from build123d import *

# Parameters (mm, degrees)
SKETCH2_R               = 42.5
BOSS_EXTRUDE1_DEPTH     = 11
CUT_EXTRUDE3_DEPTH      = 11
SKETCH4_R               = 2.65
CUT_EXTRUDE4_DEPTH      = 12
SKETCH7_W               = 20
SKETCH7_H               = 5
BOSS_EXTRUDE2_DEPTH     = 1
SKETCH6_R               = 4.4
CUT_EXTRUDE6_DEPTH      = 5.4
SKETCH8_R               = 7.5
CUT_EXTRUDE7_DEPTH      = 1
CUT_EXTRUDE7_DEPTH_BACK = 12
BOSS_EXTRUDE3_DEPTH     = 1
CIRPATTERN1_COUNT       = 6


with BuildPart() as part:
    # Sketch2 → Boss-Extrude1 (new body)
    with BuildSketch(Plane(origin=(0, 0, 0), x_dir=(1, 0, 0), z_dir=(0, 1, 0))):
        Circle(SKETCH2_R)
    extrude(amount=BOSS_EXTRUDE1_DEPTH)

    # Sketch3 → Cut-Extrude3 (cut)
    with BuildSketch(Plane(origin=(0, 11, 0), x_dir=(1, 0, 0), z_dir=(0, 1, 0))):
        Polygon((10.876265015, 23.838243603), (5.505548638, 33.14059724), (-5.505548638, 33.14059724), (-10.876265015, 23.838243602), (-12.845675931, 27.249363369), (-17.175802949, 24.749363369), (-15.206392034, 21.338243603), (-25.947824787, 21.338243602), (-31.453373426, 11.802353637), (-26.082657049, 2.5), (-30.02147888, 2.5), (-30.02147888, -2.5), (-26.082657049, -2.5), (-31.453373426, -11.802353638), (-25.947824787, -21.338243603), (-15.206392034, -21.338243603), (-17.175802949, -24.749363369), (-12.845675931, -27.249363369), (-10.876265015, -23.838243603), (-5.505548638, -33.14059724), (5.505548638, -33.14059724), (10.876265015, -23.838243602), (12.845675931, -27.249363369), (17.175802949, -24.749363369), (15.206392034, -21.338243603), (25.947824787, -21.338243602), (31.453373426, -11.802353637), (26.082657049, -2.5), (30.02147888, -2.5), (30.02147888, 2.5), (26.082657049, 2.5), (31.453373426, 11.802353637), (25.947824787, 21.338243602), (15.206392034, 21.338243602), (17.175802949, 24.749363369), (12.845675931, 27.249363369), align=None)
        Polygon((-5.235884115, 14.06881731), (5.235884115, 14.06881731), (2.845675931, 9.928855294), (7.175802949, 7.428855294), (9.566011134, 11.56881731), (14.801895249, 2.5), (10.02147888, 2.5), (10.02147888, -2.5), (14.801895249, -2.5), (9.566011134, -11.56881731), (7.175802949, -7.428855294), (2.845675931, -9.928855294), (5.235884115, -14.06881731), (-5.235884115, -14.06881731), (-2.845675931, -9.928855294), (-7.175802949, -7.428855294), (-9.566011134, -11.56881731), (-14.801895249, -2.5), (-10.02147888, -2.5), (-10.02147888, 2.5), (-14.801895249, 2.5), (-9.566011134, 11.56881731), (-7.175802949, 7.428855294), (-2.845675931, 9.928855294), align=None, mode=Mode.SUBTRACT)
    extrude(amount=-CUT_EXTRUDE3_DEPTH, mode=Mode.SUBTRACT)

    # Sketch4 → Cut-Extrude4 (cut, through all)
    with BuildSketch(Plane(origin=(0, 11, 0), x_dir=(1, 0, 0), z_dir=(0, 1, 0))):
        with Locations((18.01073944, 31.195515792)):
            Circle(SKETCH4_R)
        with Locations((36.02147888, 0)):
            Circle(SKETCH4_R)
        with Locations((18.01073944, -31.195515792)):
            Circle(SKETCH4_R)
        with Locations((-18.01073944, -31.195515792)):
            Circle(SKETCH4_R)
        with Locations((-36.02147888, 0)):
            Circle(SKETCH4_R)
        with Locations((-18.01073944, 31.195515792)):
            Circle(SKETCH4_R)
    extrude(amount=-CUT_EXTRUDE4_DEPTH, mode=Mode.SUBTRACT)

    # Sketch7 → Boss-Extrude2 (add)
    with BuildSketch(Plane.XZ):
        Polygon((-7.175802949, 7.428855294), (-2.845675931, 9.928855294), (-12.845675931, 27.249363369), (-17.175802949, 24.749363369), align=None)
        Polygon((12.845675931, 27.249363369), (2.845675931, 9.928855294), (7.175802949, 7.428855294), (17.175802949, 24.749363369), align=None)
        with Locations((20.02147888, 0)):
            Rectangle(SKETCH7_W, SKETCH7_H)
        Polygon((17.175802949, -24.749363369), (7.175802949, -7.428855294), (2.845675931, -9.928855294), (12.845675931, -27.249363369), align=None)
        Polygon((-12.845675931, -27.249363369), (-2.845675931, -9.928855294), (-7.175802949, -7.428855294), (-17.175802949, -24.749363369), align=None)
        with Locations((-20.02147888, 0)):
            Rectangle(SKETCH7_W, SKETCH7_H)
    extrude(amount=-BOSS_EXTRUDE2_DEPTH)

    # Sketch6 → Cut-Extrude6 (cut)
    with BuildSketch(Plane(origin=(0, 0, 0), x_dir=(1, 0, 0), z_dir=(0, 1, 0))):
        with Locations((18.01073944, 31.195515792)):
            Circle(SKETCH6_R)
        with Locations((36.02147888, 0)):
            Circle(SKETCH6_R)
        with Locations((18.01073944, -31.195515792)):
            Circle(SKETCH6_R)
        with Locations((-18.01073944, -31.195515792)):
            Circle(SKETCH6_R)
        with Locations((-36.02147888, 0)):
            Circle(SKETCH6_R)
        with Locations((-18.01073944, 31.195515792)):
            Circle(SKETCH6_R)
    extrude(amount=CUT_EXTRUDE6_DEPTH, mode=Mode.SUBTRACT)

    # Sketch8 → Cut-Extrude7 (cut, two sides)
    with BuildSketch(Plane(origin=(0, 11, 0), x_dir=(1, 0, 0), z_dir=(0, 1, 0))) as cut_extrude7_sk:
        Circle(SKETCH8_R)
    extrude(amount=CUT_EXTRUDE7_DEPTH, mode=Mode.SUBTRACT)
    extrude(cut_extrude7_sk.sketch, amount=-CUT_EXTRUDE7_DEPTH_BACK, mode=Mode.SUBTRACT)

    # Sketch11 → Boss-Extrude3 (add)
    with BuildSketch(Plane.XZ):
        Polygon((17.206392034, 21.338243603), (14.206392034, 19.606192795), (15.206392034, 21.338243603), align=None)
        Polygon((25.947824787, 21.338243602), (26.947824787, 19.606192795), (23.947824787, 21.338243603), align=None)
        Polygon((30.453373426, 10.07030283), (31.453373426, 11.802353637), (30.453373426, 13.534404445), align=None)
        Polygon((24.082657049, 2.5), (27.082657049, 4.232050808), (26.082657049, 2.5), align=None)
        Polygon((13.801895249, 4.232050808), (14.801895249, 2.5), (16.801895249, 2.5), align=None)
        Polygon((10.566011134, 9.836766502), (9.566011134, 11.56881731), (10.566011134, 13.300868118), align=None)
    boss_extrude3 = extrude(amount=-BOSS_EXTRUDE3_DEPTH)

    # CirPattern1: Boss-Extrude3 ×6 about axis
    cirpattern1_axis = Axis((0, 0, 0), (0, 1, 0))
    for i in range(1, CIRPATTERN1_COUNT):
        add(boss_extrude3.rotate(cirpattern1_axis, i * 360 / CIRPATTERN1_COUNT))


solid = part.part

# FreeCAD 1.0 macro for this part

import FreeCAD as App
import Part
import Sketcher
Q = App.Units.Quantity

doc = App.newDocument("Part")
body = doc.addObject("PartDesign::Body", "Body")
body.AllowCompound = True

# Sketch on XZ plane
sketch1 = body.newObject("Sketcher::SketchObject", "Sketch")
sketch1.AttachmentSupport = (doc.getObject("XZ_Plane"), [""])
sketch1.MapMode = "FlatFace"
sketch1.addGeometry(Part.Circle(App.Vector(0, 0, 0), App.Vector(0, 0, 1), 42), False)
sketch1.addConstraint(Sketcher.Constraint("Coincident", 0, 3, -1, 1))
sketch1.addConstraint(Sketcher.Constraint("Diameter", 0, 85.0))
pad1 = body.newObject("PartDesign::Pad", "Pad")
pad1.Profile = sketch1
pad1.Length = 11
pad1.Reversed = True

# Sketch on XZ plane
sketch2 = body.newObject("Sketcher::SketchObject", "Sketch001")
sketch2.AttachmentSupport = (doc.getObject("XZ_Plane"), [""])
sketch2.MapMode = "FlatFace"
sketch2.AttachmentOffset = App.Placement(App.Vector(0, 0, -11), App.Rotation())
sketch2.addGeometry(Part.LineSegment(App.Vector(10.9, -23.8, 0), App.Vector(5.5, -33.1, 0)), False)
sketch2.addGeometry(Part.LineSegment(App.Vector(5.5, -33.1, 0), App.Vector(-5.5, -33.1, 0)), False)
sketch2.addGeometry(Part.LineSegment(App.Vector(-5.5, -33.1, 0), App.Vector(-10.9, -23.8, 0)), False)
sketch2.addGeometry(Part.LineSegment(App.Vector(-10.9, -23.8, 0), App.Vector(-12.8, -27.2, 0)), False)
sketch2.addGeometry(Part.LineSegment(App.Vector(-12.8, -27.2, 0), App.Vector(-17.2, -24.7, 0)), False)
sketch2.addGeometry(Part.LineSegment(App.Vector(-17.2, -24.7, 0), App.Vector(-15.2, -21.3, 0)), False)
sketch2.addGeometry(Part.LineSegment(App.Vector(-15.2, -21.3, 0), App.Vector(-25.9, -21.3, 0)), False)
sketch2.addGeometry(Part.LineSegment(App.Vector(-25.9, -21.3, 0), App.Vector(-31.5, -11.8, 0)), False)
sketch2.addGeometry(Part.LineSegment(App.Vector(-31.5, -11.8, 0), App.Vector(-26.1, -2.5, 0)), False)
sketch2.addGeometry(Part.LineSegment(App.Vector(-26.1, -2.5, 0), App.Vector(-30, -2.5, 0)), False)
sketch2.addGeometry(Part.LineSegment(App.Vector(-30, -2.5, 0), App.Vector(-30, 2.5, 0)), False)
sketch2.addGeometry(Part.LineSegment(App.Vector(-30, 2.5, 0), App.Vector(-26.1, 2.5, 0)), False)
sketch2.addGeometry(Part.LineSegment(App.Vector(-26.1, 2.5, 0), App.Vector(-31.5, 11.8, 0)), False)
sketch2.addGeometry(Part.LineSegment(App.Vector(-31.5, 11.8, 0), App.Vector(-25.9, 21.3, 0)), False)
sketch2.addGeometry(Part.LineSegment(App.Vector(-25.9, 21.3, 0), App.Vector(-15.2, 21.3, 0)), False)
sketch2.addGeometry(Part.LineSegment(App.Vector(-15.2, 21.3, 0), App.Vector(-17.2, 24.7, 0)), False)
sketch2.addGeometry(Part.LineSegment(App.Vector(-17.2, 24.7, 0), App.Vector(-12.8, 27.2, 0)), False)
sketch2.addGeometry(Part.LineSegment(App.Vector(-12.8, 27.2, 0), App.Vector(-10.9, 23.8, 0)), False)
sketch2.addGeometry(Part.LineSegment(App.Vector(-10.9, 23.8, 0), App.Vector(-5.5, 33.1, 0)), False)
sketch2.addGeometry(Part.LineSegment(App.Vector(-5.5, 33.1, 0), App.Vector(5.5, 33.1, 0)), False)
sketch2.addGeometry(Part.LineSegment(App.Vector(5.5, 33.1, 0), App.Vector(10.9, 23.8, 0)), False)
sketch2.addGeometry(Part.LineSegment(App.Vector(10.9, 23.8, 0), App.Vector(12.8, 27.2, 0)), False)
sketch2.addGeometry(Part.LineSegment(App.Vector(12.8, 27.2, 0), App.Vector(17.2, 24.7, 0)), False)
sketch2.addGeometry(Part.LineSegment(App.Vector(17.2, 24.7, 0), App.Vector(15.2, 21.3, 0)), False)
sketch2.addGeometry(Part.LineSegment(App.Vector(15.2, 21.3, 0), App.Vector(25.9, 21.3, 0)), False)
sketch2.addGeometry(Part.LineSegment(App.Vector(25.9, 21.3, 0), App.Vector(31.5, 11.8, 0)), False)
sketch2.addGeometry(Part.LineSegment(App.Vector(31.5, 11.8, 0), App.Vector(26.1, 2.5, 0)), False)
sketch2.addGeometry(Part.LineSegment(App.Vector(26.1, 2.5, 0), App.Vector(30, 2.5, 0)), False)
sketch2.addGeometry(Part.LineSegment(App.Vector(30, 2.5, 0), App.Vector(30, -2.5, 0)), False)
sketch2.addGeometry(Part.LineSegment(App.Vector(30, -2.5, 0), App.Vector(26.1, -2.5, 0)), False)
sketch2.addGeometry(Part.LineSegment(App.Vector(26.1, -2.5, 0), App.Vector(31.5, -11.8, 0)), False)
sketch2.addGeometry(Part.LineSegment(App.Vector(31.5, -11.8, 0), App.Vector(25.9, -21.3, 0)), False)
sketch2.addGeometry(Part.LineSegment(App.Vector(25.9, -21.3, 0), App.Vector(15.2, -21.3, 0)), False)
sketch2.addGeometry(Part.LineSegment(App.Vector(15.2, -21.3, 0), App.Vector(17.2, -24.7, 0)), False)
sketch2.addGeometry(Part.LineSegment(App.Vector(17.2, -24.7, 0), App.Vector(12.8, -27.2, 0)), False)
sketch2.addGeometry(Part.LineSegment(App.Vector(12.8, -27.2, 0), App.Vector(10.9, -23.8, 0)), False)
sketch2.addGeometry(Part.LineSegment(App.Vector(-2.8, -9.9, 0), App.Vector(-5.2, -14.1, 0)), False)
sketch2.addGeometry(Part.LineSegment(App.Vector(-5.2, -14.1, 0), App.Vector(5.2, -14.1, 0)), False)
sketch2.addGeometry(Part.LineSegment(App.Vector(5.2, -14.1, 0), App.Vector(2.8, -9.9, 0)), False)
sketch2.addGeometry(Part.LineSegment(App.Vector(2.8, -9.9, 0), App.Vector(7.2, -7.4, 0)), False)
sketch2.addGeometry(Part.LineSegment(App.Vector(7.2, -7.4, 0), App.Vector(9.6, -11.6, 0)), False)
sketch2.addGeometry(Part.LineSegment(App.Vector(9.6, -11.6, 0), App.Vector(14.8, -2.5, 0)), False)
sketch2.addGeometry(Part.LineSegment(App.Vector(14.8, -2.5, 0), App.Vector(10, -2.5, 0)), False)
sketch2.addGeometry(Part.LineSegment(App.Vector(10, -2.5, 0), App.Vector(10, 2.5, 0)), False)
sketch2.addGeometry(Part.LineSegment(App.Vector(10, 2.5, 0), App.Vector(14.8, 2.5, 0)), False)
sketch2.addGeometry(Part.LineSegment(App.Vector(14.8, 2.5, 0), App.Vector(9.6, 11.6, 0)), False)
sketch2.addGeometry(Part.LineSegment(App.Vector(9.6, 11.6, 0), App.Vector(7.2, 7.4, 0)), False)
sketch2.addGeometry(Part.LineSegment(App.Vector(7.2, 7.4, 0), App.Vector(2.8, 9.9, 0)), False)
sketch2.addGeometry(Part.LineSegment(App.Vector(2.8, 9.9, 0), App.Vector(5.2, 14.1, 0)), False)
sketch2.addGeometry(Part.LineSegment(App.Vector(5.2, 14.1, 0), App.Vector(-5.2, 14.1, 0)), False)
sketch2.addGeometry(Part.LineSegment(App.Vector(-5.2, 14.1, 0), App.Vector(-2.8, 9.9, 0)), False)
sketch2.addGeometry(Part.LineSegment(App.Vector(-2.8, 9.9, 0), App.Vector(-7.2, 7.4, 0)), False)
sketch2.addGeometry(Part.LineSegment(App.Vector(-7.2, 7.4, 0), App.Vector(-9.6, 11.6, 0)), False)
sketch2.addGeometry(Part.LineSegment(App.Vector(-9.6, 11.6, 0), App.Vector(-14.8, 2.5, 0)), False)
sketch2.addGeometry(Part.LineSegment(App.Vector(-14.8, 2.5, 0), App.Vector(-10, 2.5, 0)), False)
sketch2.addGeometry(Part.LineSegment(App.Vector(-10, 2.5, 0), App.Vector(-10, -2.5, 0)), False)
sketch2.addGeometry(Part.LineSegment(App.Vector(-10, -2.5, 0), App.Vector(-14.8, -2.5, 0)), False)
sketch2.addGeometry(Part.LineSegment(App.Vector(-14.8, -2.5, 0), App.Vector(-9.6, -11.6, 0)), False)
sketch2.addGeometry(Part.LineSegment(App.Vector(-9.6, -11.6, 0), App.Vector(-7.2, -7.4, 0)), False)
sketch2.addGeometry(Part.LineSegment(App.Vector(-7.2, -7.4, 0), App.Vector(-2.8, -9.9, 0)), False)
sketch2.addConstraint(Sketcher.Constraint("Coincident", 0, 2, 1, 1))
sketch2.addConstraint(Sketcher.Constraint("Coincident", 1, 2, 2, 1))
sketch2.addConstraint(Sketcher.Constraint("Coincident", 2, 2, 3, 1))
sketch2.addConstraint(Sketcher.Constraint("Coincident", 3, 2, 4, 1))
sketch2.addConstraint(Sketcher.Constraint("Coincident", 4, 2, 5, 1))
sketch2.addConstraint(Sketcher.Constraint("Coincident", 5, 2, 6, 1))
sketch2.addConstraint(Sketcher.Constraint("Coincident", 6, 2, 7, 1))
sketch2.addConstraint(Sketcher.Constraint("Coincident", 7, 2, 8, 1))
sketch2.addConstraint(Sketcher.Constraint("Coincident", 8, 2, 9, 1))
sketch2.addConstraint(Sketcher.Constraint("Coincident", 9, 2, 10, 1))
sketch2.addConstraint(Sketcher.Constraint("Coincident", 10, 2, 11, 1))
sketch2.addConstraint(Sketcher.Constraint("Coincident", 11, 2, 12, 1))
sketch2.addConstraint(Sketcher.Constraint("Coincident", 12, 2, 13, 1))
sketch2.addConstraint(Sketcher.Constraint("Coincident", 13, 2, 14, 1))
sketch2.addConstraint(Sketcher.Constraint("Coincident", 14, 2, 15, 1))
sketch2.addConstraint(Sketcher.Constraint("Coincident", 15, 2, 16, 1))
sketch2.addConstraint(Sketcher.Constraint("Coincident", 16, 2, 17, 1))
sketch2.addConstraint(Sketcher.Constraint("Coincident", 17, 2, 18, 1))
sketch2.addConstraint(Sketcher.Constraint("Coincident", 18, 2, 19, 1))
sketch2.addConstraint(Sketcher.Constraint("Coincident", 19, 2, 20, 1))
sketch2.addConstraint(Sketcher.Constraint("Coincident", 20, 2, 21, 1))
sketch2.addConstraint(Sketcher.Constraint("Coincident", 21, 2, 22, 1))
sketch2.addConstraint(Sketcher.Constraint("Coincident", 22, 2, 23, 1))
sketch2.addConstraint(Sketcher.Constraint("Coincident", 23, 2, 24, 1))
sketch2.addConstraint(Sketcher.Constraint("Coincident", 24, 2, 25, 1))
sketch2.addConstraint(Sketcher.Constraint("Coincident", 25, 2, 26, 1))
sketch2.addConstraint(Sketcher.Constraint("Coincident", 26, 2, 27, 1))
sketch2.addConstraint(Sketcher.Constraint("Coincident", 27, 2, 28, 1))
sketch2.addConstraint(Sketcher.Constraint("Coincident", 28, 2, 29, 1))
sketch2.addConstraint(Sketcher.Constraint("Coincident", 29, 2, 30, 1))
sketch2.addConstraint(Sketcher.Constraint("Coincident", 30, 2, 31, 1))
sketch2.addConstraint(Sketcher.Constraint("Coincident", 31, 2, 32, 1))
sketch2.addConstraint(Sketcher.Constraint("Coincident", 32, 2, 33, 1))
sketch2.addConstraint(Sketcher.Constraint("Coincident", 33, 2, 34, 1))
sketch2.addConstraint(Sketcher.Constraint("Coincident", 34, 2, 35, 1))
sketch2.addConstraint(Sketcher.Constraint("Coincident", 35, 2, 0, 1))
sketch2.addConstraint(Sketcher.Constraint("Coincident", 36, 2, 37, 1))
sketch2.addConstraint(Sketcher.Constraint("Coincident", 37, 2, 38, 1))
sketch2.addConstraint(Sketcher.Constraint("Coincident", 38, 2, 39, 1))
sketch2.addConstraint(Sketcher.Constraint("Coincident", 39, 2, 40, 1))
sketch2.addConstraint(Sketcher.Constraint("Coincident", 40, 2, 41, 1))
sketch2.addConstraint(Sketcher.Constraint("Coincident", 41, 2, 42, 1))
sketch2.addConstraint(Sketcher.Constraint("Coincident", 42, 2, 43, 1))
sketch2.addConstraint(Sketcher.Constraint("Coincident", 43, 2, 44, 1))
sketch2.addConstraint(Sketcher.Constraint("Coincident", 44, 2, 45, 1))
sketch2.addConstraint(Sketcher.Constraint("Coincident", 45, 2, 46, 1))
sketch2.addConstraint(Sketcher.Constraint("Coincident", 46, 2, 47, 1))
sketch2.addConstraint(Sketcher.Constraint("Coincident", 47, 2, 48, 1))
sketch2.addConstraint(Sketcher.Constraint("Coincident", 48, 2, 49, 1))
sketch2.addConstraint(Sketcher.Constraint("Coincident", 49, 2, 50, 1))
sketch2.addConstraint(Sketcher.Constraint("Coincident", 50, 2, 51, 1))
sketch2.addConstraint(Sketcher.Constraint("Coincident", 51, 2, 52, 1))
sketch2.addConstraint(Sketcher.Constraint("Coincident", 52, 2, 53, 1))
sketch2.addConstraint(Sketcher.Constraint("Coincident", 53, 2, 54, 1))
sketch2.addConstraint(Sketcher.Constraint("Coincident", 54, 2, 55, 1))
sketch2.addConstraint(Sketcher.Constraint("Coincident", 55, 2, 56, 1))
sketch2.addConstraint(Sketcher.Constraint("Coincident", 56, 2, 57, 1))
sketch2.addConstraint(Sketcher.Constraint("Coincident", 57, 2, 58, 1))
sketch2.addConstraint(Sketcher.Constraint("Coincident", 58, 2, 59, 1))
sketch2.addConstraint(Sketcher.Constraint("Coincident", 59, 2, 36, 1))
sketch2.addConstraint(Sketcher.Constraint("Horizontal", 1))
sketch2.addConstraint(Sketcher.Constraint("Horizontal", 6))
sketch2.addConstraint(Sketcher.Constraint("Horizontal", 9))
sketch2.addConstraint(Sketcher.Constraint("Vertical", 10))
sketch2.addConstraint(Sketcher.Constraint("Horizontal", 11))
sketch2.addConstraint(Sketcher.Constraint("Horizontal", 14))
sketch2.addConstraint(Sketcher.Constraint("Horizontal", 19))
sketch2.addConstraint(Sketcher.Constraint("Horizontal", 24))
sketch2.addConstraint(Sketcher.Constraint("Horizontal", 27))
sketch2.addConstraint(Sketcher.Constraint("Vertical", 28))
sketch2.addConstraint(Sketcher.Constraint("Horizontal", 29))
sketch2.addConstraint(Sketcher.Constraint("Horizontal", 32))
sketch2.addConstraint(Sketcher.Constraint("Horizontal", 37))
sketch2.addConstraint(Sketcher.Constraint("Horizontal", 42))
sketch2.addConstraint(Sketcher.Constraint("Vertical", 43))
sketch2.addConstraint(Sketcher.Constraint("Horizontal", 44))
sketch2.addConstraint(Sketcher.Constraint("Horizontal", 49))
sketch2.addConstraint(Sketcher.Constraint("Horizontal", 54))
sketch2.addConstraint(Sketcher.Constraint("Vertical", 55))
sketch2.addConstraint(Sketcher.Constraint("Horizontal", 56))
sketch2.addConstraint(Sketcher.Constraint("Symmetric", 0, 2, 18, 2, -1, 1))
sketch2.addConstraint(Sketcher.Constraint("Symmetric", 2, 2, 20, 2, -1, 1))
sketch2.addConstraint(Sketcher.Constraint("Symmetric", 3, 2, 21, 2, -1, 1))
sketch2.addConstraint(Sketcher.Constraint("Symmetric", 4, 2, 22, 2, -1, 1))
sketch2.addConstraint(Sketcher.Constraint("Symmetric", 5, 2, 23, 2, -1, 1))
sketch2.addConstraint(Sketcher.Constraint("Symmetric", 7, 2, 25, 2, -1, 1))
sketch2.addConstraint(Sketcher.Constraint("Symmetric", 8, 2, 26, 2, -1, 1))
sketch2.addConstraint(Sketcher.Constraint("Symmetric", 10, 2, 28, 2, -1, 1))
sketch2.addConstraint(Sketcher.Constraint("Symmetric", 12, 2, 30, 2, -1, 1))
sketch2.addConstraint(Sketcher.Constraint("Symmetric", 13, 2, 31, 2, -1, 1))
sketch2.addConstraint(Sketcher.Constraint("Symmetric", 15, 2, 33, 2, -1, 1))
sketch2.addConstraint(Sketcher.Constraint("Symmetric", 16, 2, 34, 2, -1, 1))
sketch2.addConstraint(Sketcher.Constraint("Symmetric", 17, 2, 35, 2, -1, 1))
sketch2.addConstraint(Sketcher.Constraint("Symmetric", 36, 2, 48, 2, -1, 1))
sketch2.addConstraint(Sketcher.Constraint("Symmetric", 38, 2, 50, 2, -1, 1))
sketch2.addConstraint(Sketcher.Constraint("Symmetric", 39, 2, 51, 2, -1, 1))
sketch2.addConstraint(Sketcher.Constraint("Symmetric", 40, 2, 52, 2, -1, 1))
sketch2.addConstraint(Sketcher.Constraint("Symmetric", 41, 2, 53, 2, -1, 1))
sketch2.addConstraint(Sketcher.Constraint("Symmetric", 43, 2, 55, 2, -1, 1))
sketch2.addConstraint(Sketcher.Constraint("Symmetric", 45, 2, 57, 2, -1, 1))
sketch2.addConstraint(Sketcher.Constraint("Symmetric", 46, 2, 58, 2, -1, 1))
sketch2.addConstraint(Sketcher.Constraint("Symmetric", 47, 2, 59, 2, -1, 1))
sketch2.addConstraint(Sketcher.Constraint("Symmetric", 17, 2, 20, 2, -2))
sketch2.addConstraint(Sketcher.Constraint("Symmetric", 16, 2, 21, 2, -2))
sketch2.addConstraint(Sketcher.Constraint("Symmetric", 15, 2, 22, 2, -2))
sketch2.addConstraint(Sketcher.Constraint("Symmetric", 14, 2, 23, 2, -2))
sketch2.addConstraint(Sketcher.Constraint("Symmetric", 12, 2, 25, 2, -2))
sketch2.addConstraint(Sketcher.Constraint("Symmetric", 11, 2, 26, 2, -2))
sketch2.addConstraint(Sketcher.Constraint("Symmetric", 47, 2, 50, 2, -2))
sketch2.addConstraint(Sketcher.Constraint("Symmetric", 46, 2, 51, 2, -2))
sketch2.addConstraint(Sketcher.Constraint("Symmetric", 45, 2, 52, 2, -2))
sketch2.addConstraint(Sketcher.Constraint("Symmetric", 44, 2, 53, 2, -2))
sketch2.addConstraint(Sketcher.Constraint("Parallel", 0, 3))
sketch2.addConstraint(Sketcher.Constraint("Perpendicular", 3, 4))
sketch2.addConstraint(Sketcher.Constraint("Perpendicular", 4, 5))
sketch2.addConstraint(Sketcher.Constraint("Parallel", 2, 7))
sketch2.addConstraint(Sketcher.Constraint("Parallel", 5, 8))
sketch2.addConstraint(Sketcher.Constraint("Parallel", 7, 12))
sketch2.addConstraint(Sketcher.Constraint("Parallel", 8, 13))
sketch2.addConstraint(Sketcher.Constraint("Parallel", 17, 20))
sketch2.addConstraint(Sketcher.Constraint("Parallel", 20, 25))
sketch2.addConstraint(Sketcher.Constraint("Parallel", 25, 30))
sketch2.addConstraint(Sketcher.Constraint("Parallel", 30, 33))
sketch2.addConstraint(Sketcher.Constraint("Parallel", 31, 36))
sketch2.addConstraint(Sketcher.Constraint("Parallel", 35, 38))
sketch2.addConstraint(Sketcher.Constraint("Perpendicular", 38, 39))
sketch2.addConstraint(Sketcher.Constraint("Perpendicular", 39, 40))
sketch2.addConstraint(Sketcher.Constraint("Parallel", 36, 41))
sketch2.addConstraint(Sketcher.Constraint("Parallel", 45, 50))
sketch2.addConstraint(Sketcher.Constraint("Parallel", 52, 57))
sketch2.addConstraint(Sketcher.Constraint("Horizontal", 29, 2, 41, 2))
sketch2.addConstraint(Sketcher.Constraint("Equal", 3, 5))
sketch2.addConstraint(Sketcher.Constraint("Equal", 2, 8))
sketch2.addConstraint(Sketcher.Constraint("Equal", 34, 39))
sketch2.addConstraint(Sketcher.Constraint("Equal", 38, 40))
sketch2.addConstraint(Sketcher.Constraint("DistanceY", 10, 1, 10, 2, 5.0))
sketch2.addConstraint(Sketcher.Constraint("Angle", 0, Q("-120 deg")))
sketch2.addConstraint(Sketcher.Constraint("Distance", 4, 5.0))
sketch2.addConstraint(Sketcher.Constraint("DistanceX", 9, 2, 9, 1, 3.938822))
sketch2.addConstraint(Sketcher.Constraint("DistanceX", 37, 1, 37, 2, 10.471768))
sketch2.addConstraint(Sketcher.Constraint("Distance", 3, 3.938822))
sketch2.addConstraint(Sketcher.Constraint("Distance", 41, 10.471768))
sketch2.addConstraint(Sketcher.Constraint("DistanceX", 1, 2, 1, 1, 11.011097))
sketch2.addConstraint(Sketcher.Constraint("DistanceX", 6, 2, 6, 1, 10.741433))
sketch2.addConstraint(Sketcher.Constraint("DistanceX", 42, 2, 42, 1, 4.780416))
sketch2.addConstraint(Sketcher.Constraint("DistanceX", 9, 2, -1, 1, 30.021479))
sketch2.addConstraint(Sketcher.Constraint("DistanceX", 4, 2, 0, 2, 22.681352))
sketch2.addConstraint(Sketcher.Constraint("DistanceX", 38, 2, 37, 2, 2.390208))
pocket1 = body.newObject("PartDesign::Pocket", "Pocket")
pocket1.Profile = sketch2
pocket1.Length = 11
pocket1.Reversed = True

# Sketch on XZ plane
sketch3 = body.newObject("Sketcher::SketchObject", "Sketch002")
sketch3.AttachmentSupport = (doc.getObject("XZ_Plane"), [""])
sketch3.MapMode = "FlatFace"
sketch3.AttachmentOffset = App.Placement(App.Vector(0, 0, -11), App.Rotation())
sketch3.addGeometry(Part.Circle(App.Vector(18, -31.2, 0), App.Vector(0, 0, 1), 2.6), False)
sketch3.addGeometry(Part.Circle(App.Vector(36, 0, 0), App.Vector(0, 0, 1), 2.6), False)
sketch3.addGeometry(Part.Circle(App.Vector(18, 31.2, 0), App.Vector(0, 0, 1), 2.6), False)
sketch3.addGeometry(Part.Circle(App.Vector(-18, 31.2, 0), App.Vector(0, 0, 1), 2.6), False)
sketch3.addGeometry(Part.Circle(App.Vector(-36, 0, 0), App.Vector(0, 0, 1), 2.6), False)
sketch3.addGeometry(Part.Circle(App.Vector(-18, -31.2, 0), App.Vector(0, 0, 1), 2.6), False)
sketch3.addConstraint(Sketcher.Constraint("Equal", 0, 1))
sketch3.addConstraint(Sketcher.Constraint("Equal", 1, 2))
sketch3.addConstraint(Sketcher.Constraint("Equal", 2, 3))
sketch3.addConstraint(Sketcher.Constraint("Equal", 3, 4))
sketch3.addConstraint(Sketcher.Constraint("Equal", 4, 5))
sketch3.addConstraint(Sketcher.Constraint("Symmetric", 0, 3, 3, 3, -1, 1))
sketch3.addConstraint(Sketcher.Constraint("Symmetric", 1, 3, 4, 3, -1, 1))
sketch3.addConstraint(Sketcher.Constraint("Symmetric", 2, 3, 5, 3, -1, 1))
sketch3.addConstraint(Sketcher.Constraint("Symmetric", 2, 3, 3, 3, -2))
sketch3.addConstraint(Sketcher.Constraint("PointOnObject", 1, 3, -1))
sketch3.addConstraint(Sketcher.Constraint("Diameter", 0, 5.3))
sketch3.addConstraint(Sketcher.Constraint("DistanceX", -1, 1, 0, 3, 18.010739))
sketch3.addConstraint(Sketcher.Constraint("DistanceX", -1, 1, 1, 3, 36.021479))
sketch3.addConstraint(Sketcher.Constraint("DistanceY", 0, 3, 2, 3, 62.391032))
pocket2 = body.newObject("PartDesign::Pocket", "Pocket001")
pocket2.Profile = sketch3
pocket2.Type = "ThroughAll"
pocket2.Reversed = True

# Sketch on XZ plane
sketch4 = body.newObject("Sketcher::SketchObject", "Sketch003")
sketch4.AttachmentSupport = (doc.getObject("XZ_Plane"), [""])
sketch4.MapMode = "FlatFace"
sketch4.addGeometry(Part.LineSegment(App.Vector(-7.2, 7.4, 0), App.Vector(-2.8, 9.9, 0)), False)
sketch4.addGeometry(Part.LineSegment(App.Vector(-2.8, 9.9, 0), App.Vector(-12.8, 27.2, 0)), False)
sketch4.addGeometry(Part.LineSegment(App.Vector(-12.8, 27.2, 0), App.Vector(-17.2, 24.7, 0)), False)
sketch4.addGeometry(Part.LineSegment(App.Vector(-17.2, 24.7, 0), App.Vector(-7.2, 7.4, 0)), False)
sketch4.addGeometry(Part.LineSegment(App.Vector(12.8, 27.2, 0), App.Vector(2.8, 9.9, 0)), False)
sketch4.addGeometry(Part.LineSegment(App.Vector(2.8, 9.9, 0), App.Vector(7.2, 7.4, 0)), False)
sketch4.addGeometry(Part.LineSegment(App.Vector(7.2, 7.4, 0), App.Vector(17.2, 24.7, 0)), False)
sketch4.addGeometry(Part.LineSegment(App.Vector(17.2, 24.7, 0), App.Vector(12.8, 27.2, 0)), False)
sketch4.addGeometry(Part.LineSegment(App.Vector(10, 2.5, 0), App.Vector(10, -2.5, 0)), False)
sketch4.addGeometry(Part.LineSegment(App.Vector(10, -2.5, 0), App.Vector(30, -2.5, 0)), False)
sketch4.addGeometry(Part.LineSegment(App.Vector(30, -2.5, 0), App.Vector(30, 2.5, 0)), False)
sketch4.addGeometry(Part.LineSegment(App.Vector(30, 2.5, 0), App.Vector(10, 2.5, 0)), False)
sketch4.addGeometry(Part.LineSegment(App.Vector(17.2, -24.7, 0), App.Vector(7.2, -7.4, 0)), False)
sketch4.addGeometry(Part.LineSegment(App.Vector(7.2, -7.4, 0), App.Vector(2.8, -9.9, 0)), False)
sketch4.addGeometry(Part.LineSegment(App.Vector(2.8, -9.9, 0), App.Vector(12.8, -27.2, 0)), False)
sketch4.addGeometry(Part.LineSegment(App.Vector(12.8, -27.2, 0), App.Vector(17.2, -24.7, 0)), False)
sketch4.addGeometry(Part.LineSegment(App.Vector(-12.8, -27.2, 0), App.Vector(-2.8, -9.9, 0)), False)
sketch4.addGeometry(Part.LineSegment(App.Vector(-2.8, -9.9, 0), App.Vector(-7.2, -7.4, 0)), False)
sketch4.addGeometry(Part.LineSegment(App.Vector(-7.2, -7.4, 0), App.Vector(-17.2, -24.7, 0)), False)
sketch4.addGeometry(Part.LineSegment(App.Vector(-17.2, -24.7, 0), App.Vector(-12.8, -27.2, 0)), False)
sketch4.addGeometry(Part.LineSegment(App.Vector(-30, 2.5, 0), App.Vector(-30, -2.5, 0)), False)
sketch4.addGeometry(Part.LineSegment(App.Vector(-30, -2.5, 0), App.Vector(-10, -2.5, 0)), False)
sketch4.addGeometry(Part.LineSegment(App.Vector(-10, -2.5, 0), App.Vector(-10, 2.5, 0)), False)
sketch4.addGeometry(Part.LineSegment(App.Vector(-10, 2.5, 0), App.Vector(-30, 2.5, 0)), False)
sketch4.addConstraint(Sketcher.Constraint("Coincident", 0, 2, 1, 1))
sketch4.addConstraint(Sketcher.Constraint("Coincident", 1, 2, 2, 1))
sketch4.addConstraint(Sketcher.Constraint("Coincident", 2, 2, 3, 1))
sketch4.addConstraint(Sketcher.Constraint("Coincident", 3, 2, 0, 1))
sketch4.addConstraint(Sketcher.Constraint("Coincident", 4, 2, 5, 1))
sketch4.addConstraint(Sketcher.Constraint("Coincident", 5, 2, 6, 1))
sketch4.addConstraint(Sketcher.Constraint("Coincident", 6, 2, 7, 1))
sketch4.addConstraint(Sketcher.Constraint("Coincident", 7, 2, 4, 1))
sketch4.addConstraint(Sketcher.Constraint("Coincident", 8, 2, 9, 1))
sketch4.addConstraint(Sketcher.Constraint("Coincident", 9, 2, 10, 1))
sketch4.addConstraint(Sketcher.Constraint("Coincident", 10, 2, 11, 1))
sketch4.addConstraint(Sketcher.Constraint("Coincident", 11, 2, 8, 1))
sketch4.addConstraint(Sketcher.Constraint("Coincident", 12, 2, 13, 1))
sketch4.addConstraint(Sketcher.Constraint("Coincident", 13, 2, 14, 1))
sketch4.addConstraint(Sketcher.Constraint("Coincident", 14, 2, 15, 1))
sketch4.addConstraint(Sketcher.Constraint("Coincident", 15, 2, 12, 1))
sketch4.addConstraint(Sketcher.Constraint("Coincident", 16, 2, 17, 1))
sketch4.addConstraint(Sketcher.Constraint("Coincident", 17, 2, 18, 1))
sketch4.addConstraint(Sketcher.Constraint("Coincident", 18, 2, 19, 1))
sketch4.addConstraint(Sketcher.Constraint("Coincident", 19, 2, 16, 1))
sketch4.addConstraint(Sketcher.Constraint("Coincident", 20, 2, 21, 1))
sketch4.addConstraint(Sketcher.Constraint("Coincident", 21, 2, 22, 1))
sketch4.addConstraint(Sketcher.Constraint("Coincident", 22, 2, 23, 1))
sketch4.addConstraint(Sketcher.Constraint("Coincident", 23, 2, 20, 1))
sketch4.addConstraint(Sketcher.Constraint("Vertical", 8))
sketch4.addConstraint(Sketcher.Constraint("Horizontal", 9))
sketch4.addConstraint(Sketcher.Constraint("Vertical", 10))
sketch4.addConstraint(Sketcher.Constraint("Horizontal", 11))
sketch4.addConstraint(Sketcher.Constraint("Vertical", 20))
sketch4.addConstraint(Sketcher.Constraint("Horizontal", 21))
sketch4.addConstraint(Sketcher.Constraint("Vertical", 22))
sketch4.addConstraint(Sketcher.Constraint("Horizontal", 23))
sketch4.addConstraint(Sketcher.Constraint("Symmetric", 3, 2, 12, 2, -1, 1))
sketch4.addConstraint(Sketcher.Constraint("Symmetric", 0, 2, 13, 2, -1, 1))
sketch4.addConstraint(Sketcher.Constraint("Symmetric", 1, 2, 14, 2, -1, 1))
sketch4.addConstraint(Sketcher.Constraint("Symmetric", 2, 2, 15, 2, -1, 1))
sketch4.addConstraint(Sketcher.Constraint("Symmetric", 4, 2, 16, 2, -1, 1))
sketch4.addConstraint(Sketcher.Constraint("Symmetric", 5, 2, 17, 2, -1, 1))
sketch4.addConstraint(Sketcher.Constraint("Symmetric", 6, 2, 18, 2, -1, 1))
sketch4.addConstraint(Sketcher.Constraint("Symmetric", 7, 2, 19, 2, -1, 1))
sketch4.addConstraint(Sketcher.Constraint("Symmetric", 10, 2, 20, 2, -1, 1))
sketch4.addConstraint(Sketcher.Constraint("Symmetric", 8, 2, 22, 2, -1, 1))
sketch4.addConstraint(Sketcher.Constraint("Symmetric", 0, 2, 4, 2, -2))
sketch4.addConstraint(Sketcher.Constraint("Symmetric", 3, 2, 5, 2, -2))
sketch4.addConstraint(Sketcher.Constraint("Symmetric", 2, 2, 6, 2, -2))
sketch4.addConstraint(Sketcher.Constraint("Symmetric", 1, 2, 7, 2, -2))
sketch4.addConstraint(Sketcher.Constraint("Perpendicular", 0, 1))
sketch4.addConstraint(Sketcher.Constraint("Perpendicular", 1, 2))
sketch4.addConstraint(Sketcher.Constraint("Perpendicular", 2, 3))
sketch4.addConstraint(Sketcher.Constraint("Horizontal", 9, 2, 20, 2))
sketch4.addConstraint(Sketcher.Constraint("DistanceX", 9, 1, 9, 2, 20.0))
sketch4.addConstraint(Sketcher.Constraint("DistanceY", 8, 2, 8, 1, 5.0))
sketch4.addConstraint(Sketcher.Constraint("Angle", 0, Q("30 deg")))
sketch4.addConstraint(Sketcher.Constraint("Distance", 0, 5.0))
sketch4.addConstraint(Sketcher.Constraint("Distance", 1, 20.0))
sketch4.addConstraint(Sketcher.Constraint("DistanceX", -1, 1, 8, 2, 10.021479))
sketch4.addConstraint(Sketcher.Constraint("DistanceX", 0, 2, 4, 2, 5.691352))
sketch4.addConstraint(Sketcher.Constraint("DistanceY", 12, 2, 5, 2, 14.857711))
pad2 = body.newObject("PartDesign::Pad", "Pad001")
pad2.Profile = sketch4
pad2.Length = 1
pad2.Reversed = True

# Sketch on XZ plane
sketch5 = body.newObject("Sketcher::SketchObject", "Sketch004")
sketch5.AttachmentSupport = (doc.getObject("XZ_Plane"), [""])
sketch5.MapMode = "FlatFace"
sketch5.addGeometry(Part.Circle(App.Vector(18, -31.2, 0), App.Vector(0, 0, 1), 4.4), False)
sketch5.addGeometry(Part.Circle(App.Vector(36, 0, 0), App.Vector(0, 0, 1), 4.4), False)
sketch5.addGeometry(Part.Circle(App.Vector(18, 31.2, 0), App.Vector(0, 0, 1), 4.4), False)
sketch5.addGeometry(Part.Circle(App.Vector(-18, 31.2, 0), App.Vector(0, 0, 1), 4.4), False)
sketch5.addGeometry(Part.Circle(App.Vector(-36, 0, 0), App.Vector(0, 0, 1), 4.4), False)
sketch5.addGeometry(Part.Circle(App.Vector(-18, -31.2, 0), App.Vector(0, 0, 1), 4.4), False)
sketch5.addConstraint(Sketcher.Constraint("Equal", 0, 1))
sketch5.addConstraint(Sketcher.Constraint("Equal", 1, 2))
sketch5.addConstraint(Sketcher.Constraint("Equal", 2, 3))
sketch5.addConstraint(Sketcher.Constraint("Equal", 3, 4))
sketch5.addConstraint(Sketcher.Constraint("Equal", 4, 5))
sketch5.addConstraint(Sketcher.Constraint("Symmetric", 0, 3, 3, 3, -1, 1))
sketch5.addConstraint(Sketcher.Constraint("Symmetric", 1, 3, 4, 3, -1, 1))
sketch5.addConstraint(Sketcher.Constraint("Symmetric", 2, 3, 5, 3, -1, 1))
sketch5.addConstraint(Sketcher.Constraint("Symmetric", 2, 3, 3, 3, -2))
sketch5.addConstraint(Sketcher.Constraint("PointOnObject", 1, 3, -1))
sketch5.addConstraint(Sketcher.Constraint("Diameter", 0, 8.8))
sketch5.addConstraint(Sketcher.Constraint("DistanceX", -1, 1, 0, 3, 18.010739))
sketch5.addConstraint(Sketcher.Constraint("DistanceX", -1, 1, 1, 3, 36.021479))
sketch5.addConstraint(Sketcher.Constraint("DistanceY", 0, 3, 2, 3, 62.391032))
pocket3 = body.newObject("PartDesign::Pocket", "Pocket002")
pocket3.Profile = sketch5
pocket3.Length = 5.4

# Sketch on XZ plane
sketch6 = body.newObject("Sketcher::SketchObject", "Sketch005")
sketch6.AttachmentSupport = (doc.getObject("XZ_Plane"), [""])
sketch6.MapMode = "FlatFace"
sketch6.AttachmentOffset = App.Placement(App.Vector(0, 0, -11), App.Rotation())
sketch6.addGeometry(Part.Circle(App.Vector(0, 0, 0), App.Vector(0, 0, 1), 8), False)
sketch6.addConstraint(Sketcher.Constraint("Coincident", 0, 3, -1, 1))
sketch6.addConstraint(Sketcher.Constraint("Diameter", 0, 15.0))
pocket4 = body.newObject("PartDesign::Pocket", "Pocket003")
pocket4.Profile = sketch6
pocket4.Type = "ThroughAll"
pocket4.Midplane = True

# Sketch on XZ plane
sketch7 = body.newObject("Sketcher::SketchObject", "Sketch006")
sketch7.AttachmentSupport = (doc.getObject("XZ_Plane"), [""])
sketch7.MapMode = "FlatFace"
sketch7.addGeometry(Part.LineSegment(App.Vector(14.2, 19.6, 0), App.Vector(17.2, 21.3, 0)), False)
sketch7.addGeometry(Part.LineSegment(App.Vector(17.2, 21.3, 0), App.Vector(15.2, 21.3, 0)), False)
sketch7.addGeometry(Part.LineSegment(App.Vector(15.2, 21.3, 0), App.Vector(14.2, 19.6, 0)), False)
sketch7.addGeometry(Part.LineSegment(App.Vector(26.9, 19.6, 0), App.Vector(25.9, 21.3, 0)), False)
sketch7.addGeometry(Part.LineSegment(App.Vector(25.9, 21.3, 0), App.Vector(23.9, 21.3, 0)), False)
sketch7.addGeometry(Part.LineSegment(App.Vector(23.9, 21.3, 0), App.Vector(26.9, 19.6, 0)), False)
sketch7.addGeometry(Part.LineSegment(App.Vector(30.5, 10.1, 0), App.Vector(31.5, 11.8, 0)), False)
sketch7.addGeometry(Part.LineSegment(App.Vector(31.5, 11.8, 0), App.Vector(30.5, 13.5, 0)), False)
sketch7.addGeometry(Part.LineSegment(App.Vector(30.5, 13.5, 0), App.Vector(30.5, 10.1, 0)), False)
sketch7.addGeometry(Part.LineSegment(App.Vector(27.1, 4.2, 0), App.Vector(24.1, 2.5, 0)), False)
sketch7.addGeometry(Part.LineSegment(App.Vector(24.1, 2.5, 0), App.Vector(26.1, 2.5, 0)), False)
sketch7.addGeometry(Part.LineSegment(App.Vector(26.1, 2.5, 0), App.Vector(27.1, 4.2, 0)), False)
sketch7.addGeometry(Part.LineSegment(App.Vector(13.8, 4.2, 0), App.Vector(14.8, 2.5, 0)), False)
sketch7.addGeometry(Part.LineSegment(App.Vector(14.8, 2.5, 0), App.Vector(16.8, 2.5, 0)), False)
sketch7.addGeometry(Part.LineSegment(App.Vector(16.8, 2.5, 0), App.Vector(13.8, 4.2, 0)), False)
sketch7.addGeometry(Part.LineSegment(App.Vector(9.6, 11.6, 0), App.Vector(10.6, 9.8, 0)), False)
sketch7.addGeometry(Part.LineSegment(App.Vector(10.6, 9.8, 0), App.Vector(10.6, 13.3, 0)), False)
sketch7.addGeometry(Part.LineSegment(App.Vector(10.6, 13.3, 0), App.Vector(9.6, 11.6, 0)), False)
sketch7.addConstraint(Sketcher.Constraint("Coincident", 0, 2, 1, 1))
sketch7.addConstraint(Sketcher.Constraint("Coincident", 1, 2, 2, 1))
sketch7.addConstraint(Sketcher.Constraint("Coincident", 2, 2, 0, 1))
sketch7.addConstraint(Sketcher.Constraint("Coincident", 3, 2, 4, 1))
sketch7.addConstraint(Sketcher.Constraint("Coincident", 4, 2, 5, 1))
sketch7.addConstraint(Sketcher.Constraint("Coincident", 5, 2, 3, 1))
sketch7.addConstraint(Sketcher.Constraint("Coincident", 6, 2, 7, 1))
sketch7.addConstraint(Sketcher.Constraint("Coincident", 7, 2, 8, 1))
sketch7.addConstraint(Sketcher.Constraint("Coincident", 8, 2, 6, 1))
sketch7.addConstraint(Sketcher.Constraint("Coincident", 9, 2, 10, 1))
sketch7.addConstraint(Sketcher.Constraint("Coincident", 10, 2, 11, 1))
sketch7.addConstraint(Sketcher.Constraint("Coincident", 11, 2, 9, 1))
sketch7.addConstraint(Sketcher.Constraint("Coincident", 12, 2, 13, 1))
sketch7.addConstraint(Sketcher.Constraint("Coincident", 13, 2, 14, 1))
sketch7.addConstraint(Sketcher.Constraint("Coincident", 14, 2, 12, 1))
sketch7.addConstraint(Sketcher.Constraint("Coincident", 15, 2, 16, 1))
sketch7.addConstraint(Sketcher.Constraint("Coincident", 16, 2, 17, 1))
sketch7.addConstraint(Sketcher.Constraint("Coincident", 17, 2, 15, 1))
sketch7.addConstraint(Sketcher.Constraint("Horizontal", 1))
sketch7.addConstraint(Sketcher.Constraint("Horizontal", 4))
sketch7.addConstraint(Sketcher.Constraint("Vertical", 8))
sketch7.addConstraint(Sketcher.Constraint("Horizontal", 10))
sketch7.addConstraint(Sketcher.Constraint("Horizontal", 13))
sketch7.addConstraint(Sketcher.Constraint("Vertical", 16))
sketch7.addConstraint(Sketcher.Constraint("Perpendicular", 0, 3))
sketch7.addConstraint(Sketcher.Constraint("Perpendicular", 2, 5))
sketch7.addConstraint(Sketcher.Constraint("Perpendicular", 5, 6))
sketch7.addConstraint(Sketcher.Constraint("Parallel", 3, 7))
sketch7.addConstraint(Sketcher.Constraint("Perpendicular", 7, 9))
sketch7.addConstraint(Sketcher.Constraint("Parallel", 6, 11))
sketch7.addConstraint(Sketcher.Constraint("Perpendicular", 9, 12))
sketch7.addConstraint(Sketcher.Constraint("Perpendicular", 11, 14))
sketch7.addConstraint(Sketcher.Constraint("Parallel", 12, 15))
sketch7.addConstraint(Sketcher.Constraint("Perpendicular", 14, 17))
sketch7.addConstraint(Sketcher.Constraint("Horizontal", 1, 2, 3, 2))
sketch7.addConstraint(Sketcher.Constraint("Horizontal", 2, 2, 5, 2))
sketch7.addConstraint(Sketcher.Constraint("Horizontal", 10, 2, 12, 2))
sketch7.addConstraint(Sketcher.Constraint("Horizontal", 11, 2, 14, 2))
sketch7.addConstraint(Sketcher.Constraint("Equal", 1, 4))
sketch7.addConstraint(Sketcher.Constraint("Equal", 4, 10))
sketch7.addConstraint(Sketcher.Constraint("Equal", 8, 16))
sketch7.addConstraint(Sketcher.Constraint("Equal", 3, 6))
sketch7.addConstraint(Sketcher.Constraint("DistanceX", 1, 2, 1, 1, 2.0))
sketch7.addConstraint(Sketcher.Constraint("Angle", 0, Q("30 deg")))
sketch7.addConstraint(Sketcher.Constraint("DistanceY", -1, 1, 9, 2, 2.5))
sketch7.addConstraint(Sketcher.Constraint("DistanceX", -1, 1, 15, 2, 10.566011))
sketch7.addConstraint(Sketcher.Constraint("DistanceY", -1, 1, 16, 2, 13.300868))
sketch7.addConstraint(Sketcher.Constraint("DistanceX", 5, 2, 6, 2, 4.505549))
sketch7.addConstraint(Sketcher.Constraint("DistanceY", 6, 2, 5, 2, 7.803839))
sketch7.addConstraint(Sketcher.Constraint("DistanceX", 0, 2, 6, 2, 14.246981))
sketch7.addConstraint(Sketcher.Constraint("DistanceX", 12, 2, 9, 2, 9.280762))
sketch7.addConstraint(Sketcher.Constraint("DistanceX", 12, 2, 8, 2, 15.651478))
sketch7.addConstraint(Sketcher.Constraint("DistanceX", 15, 2, 2, 2, 3.640381))
sketch7.addConstraint(Sketcher.Constraint("DistanceY", -1, 1, 0, 2, 21.338244))
pad3 = body.newObject("PartDesign::Pad", "Pad002")
pad3.Profile = sketch7
pad3.Length = 1
pad3.Reversed = True
doc.recompute()

polarpattern = body.newObject("PartDesign::PolarPattern", "PolarPattern")
polarpattern.Originals = [pad3]
polarpattern.Axis = (doc.getObject("Y_Axis"), [""])
polarpattern.Angle = 360
polarpattern.Occurrences = 6
body.Tip = polarpattern

doc.recompute()
